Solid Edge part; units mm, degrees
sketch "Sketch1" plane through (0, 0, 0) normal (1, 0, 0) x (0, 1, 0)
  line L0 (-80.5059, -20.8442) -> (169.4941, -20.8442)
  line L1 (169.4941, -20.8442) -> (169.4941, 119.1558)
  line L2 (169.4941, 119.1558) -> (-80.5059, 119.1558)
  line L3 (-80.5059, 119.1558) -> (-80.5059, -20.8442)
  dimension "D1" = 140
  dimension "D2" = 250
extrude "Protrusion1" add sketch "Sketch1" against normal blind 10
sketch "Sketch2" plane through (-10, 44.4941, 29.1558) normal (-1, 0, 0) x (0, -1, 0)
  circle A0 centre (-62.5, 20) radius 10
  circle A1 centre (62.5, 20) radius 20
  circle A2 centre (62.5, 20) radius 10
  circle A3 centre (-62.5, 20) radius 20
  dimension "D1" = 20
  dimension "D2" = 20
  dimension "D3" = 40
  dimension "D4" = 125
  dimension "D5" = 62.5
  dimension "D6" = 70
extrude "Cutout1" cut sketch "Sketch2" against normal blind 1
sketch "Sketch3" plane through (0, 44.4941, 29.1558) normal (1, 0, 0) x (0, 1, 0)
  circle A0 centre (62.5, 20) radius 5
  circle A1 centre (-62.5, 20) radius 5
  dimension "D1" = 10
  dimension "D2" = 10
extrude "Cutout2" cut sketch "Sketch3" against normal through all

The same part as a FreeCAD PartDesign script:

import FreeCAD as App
import Part
import Sketcher

V = App.Vector

doc = App.newDocument("Part")
body = doc.addObject("PartDesign::Body", "Body")

# Sketch on YZ plane
sketch1 = doc.addObject("Sketcher::SketchObject", "Sketch")
body.addObject(sketch1)
sketch1.AttachmentSupport = (doc.YZ_Plane, [""])
sketch1.MapMode = "FlatFace"
sketch1.addGeometry([
    Part.LineSegment(V(-81, 119, 0), V(-81, -21, 0)),
    Part.LineSegment(V(-81, -21, 0), V(169, -21, 0)),
    Part.LineSegment(V(169, -21, 0), V(169, 119, 0)),
    Part.LineSegment(V(169, 119, 0), V(-81, 119, 0)),
], False)
sketch1.addConstraint([
    Sketcher.Constraint("Coincident", 0, 2, 1, 1),
    Sketcher.Constraint("Coincident", 1, 2, 2, 1),
    Sketcher.Constraint("Coincident", 2, 2, 3, 1),
    Sketcher.Constraint("Coincident", 3, 2, 0, 1),
    Sketcher.Constraint("Vertical", 0),
    Sketcher.Constraint("Horizontal", 1),
    Sketcher.Constraint("Vertical", 2),
    Sketcher.Constraint("Horizontal", 3),
    Sketcher.Constraint("DistanceX", 1, 1, 1, 2, 250.0),
    Sketcher.Constraint("DistanceY", 0, 2, 0, 1, 140.0),
    Sketcher.Constraint("DistanceX", 0, 2, -1, 1, 80.506),
    Sketcher.Constraint("DistanceY", 0, 2, -1, 1, 20.8442),
])
pad1 = doc.addObject("PartDesign::Pad", "Pad")
body.addObject(pad1)
pad1.Profile = sketch1
pad1.Length = 10
pad1.Reversed = True

# Sketch on YZ plane
sketch2 = doc.addObject("Sketcher::SketchObject", "Sketch001")
body.addObject(sketch2)
sketch2.AttachmentSupport = (doc.YZ_Plane, [""])
sketch2.MapMode = "FlatFace"
sketch2.AttachmentOffset = App.Placement(V(0, 0, -10), App.Rotation())
sketch2.addGeometry([
    Part.Circle(V(-18, 49, 0), V(0, 0, 1), 20),
    Part.Circle(V(-18, 49, 0), V(0, 0, 1), 10),
    Part.Circle(V(107, 49, 0), V(0, 0, 1), 20),
    Part.Circle(V(107, 49, 0), V(0, 0, 1), 10),
], False)
sketch2.addConstraint([
    Sketcher.Constraint("Coincident", 1, 3, 0, 3),
    Sketcher.Constraint("Coincident", 3, 3, 2, 3),
    Sketcher.Constraint("Equal", 0, 2),
    Sketcher.Constraint("Equal", 1, 3),
    Sketcher.Constraint("Horizontal", 1, 3, 2, 3),
    Sketcher.Constraint("Diameter", 0, 40.0),
    Sketcher.Constraint("Diameter", 1, 20.0),
    Sketcher.Constraint("DistanceX", 0, 3, 2, 3, 125.0),
    Sketcher.Constraint("DistanceX", 0, 3, -1, 1, 18.006),
    Sketcher.Constraint("DistanceY", -1, 1, 0, 3, 49.1558),
])
pocket1 = doc.addObject("PartDesign::Pocket", "Pocket")
body.addObject(pocket1)
pocket1.Profile = sketch2
pocket1.Length = 1
pocket1.Reversed = True

# Sketch on YZ plane
sketch3 = doc.addObject("Sketcher::SketchObject", "Sketch002")
body.addObject(sketch3)
sketch3.AttachmentSupport = (doc.YZ_Plane, [""])
sketch3.MapMode = "FlatFace"
sketch3.addGeometry([
    Part.Circle(V(107, 49, 0), V(0, 0, 1), 5),
    Part.Circle(V(-18, 49, 0), V(0, 0, 1), 5),
], False)
sketch3.addConstraint([
    Sketcher.Constraint("Equal", 0, 1),
    Sketcher.Constraint("Horizontal", 0, 3, 1, 3),
    Sketcher.Constraint("Diameter", 0, 10.0),
    Sketcher.Constraint("DistanceX", 1, 3, 0, 3, 125.0),
    Sketcher.Constraint("DistanceX", -1, 1, 0, 3, 106.994),
    Sketcher.Constraint("DistanceY", -1, 1, 0, 3, 49.1558),
])
pocket2 = doc.addObject("PartDesign::Pocket", "Pocket001")
body.addObject(pocket2)
pocket2.Profile = sketch3
pocket2.Type = "ThroughAll"

doc.recompute()
